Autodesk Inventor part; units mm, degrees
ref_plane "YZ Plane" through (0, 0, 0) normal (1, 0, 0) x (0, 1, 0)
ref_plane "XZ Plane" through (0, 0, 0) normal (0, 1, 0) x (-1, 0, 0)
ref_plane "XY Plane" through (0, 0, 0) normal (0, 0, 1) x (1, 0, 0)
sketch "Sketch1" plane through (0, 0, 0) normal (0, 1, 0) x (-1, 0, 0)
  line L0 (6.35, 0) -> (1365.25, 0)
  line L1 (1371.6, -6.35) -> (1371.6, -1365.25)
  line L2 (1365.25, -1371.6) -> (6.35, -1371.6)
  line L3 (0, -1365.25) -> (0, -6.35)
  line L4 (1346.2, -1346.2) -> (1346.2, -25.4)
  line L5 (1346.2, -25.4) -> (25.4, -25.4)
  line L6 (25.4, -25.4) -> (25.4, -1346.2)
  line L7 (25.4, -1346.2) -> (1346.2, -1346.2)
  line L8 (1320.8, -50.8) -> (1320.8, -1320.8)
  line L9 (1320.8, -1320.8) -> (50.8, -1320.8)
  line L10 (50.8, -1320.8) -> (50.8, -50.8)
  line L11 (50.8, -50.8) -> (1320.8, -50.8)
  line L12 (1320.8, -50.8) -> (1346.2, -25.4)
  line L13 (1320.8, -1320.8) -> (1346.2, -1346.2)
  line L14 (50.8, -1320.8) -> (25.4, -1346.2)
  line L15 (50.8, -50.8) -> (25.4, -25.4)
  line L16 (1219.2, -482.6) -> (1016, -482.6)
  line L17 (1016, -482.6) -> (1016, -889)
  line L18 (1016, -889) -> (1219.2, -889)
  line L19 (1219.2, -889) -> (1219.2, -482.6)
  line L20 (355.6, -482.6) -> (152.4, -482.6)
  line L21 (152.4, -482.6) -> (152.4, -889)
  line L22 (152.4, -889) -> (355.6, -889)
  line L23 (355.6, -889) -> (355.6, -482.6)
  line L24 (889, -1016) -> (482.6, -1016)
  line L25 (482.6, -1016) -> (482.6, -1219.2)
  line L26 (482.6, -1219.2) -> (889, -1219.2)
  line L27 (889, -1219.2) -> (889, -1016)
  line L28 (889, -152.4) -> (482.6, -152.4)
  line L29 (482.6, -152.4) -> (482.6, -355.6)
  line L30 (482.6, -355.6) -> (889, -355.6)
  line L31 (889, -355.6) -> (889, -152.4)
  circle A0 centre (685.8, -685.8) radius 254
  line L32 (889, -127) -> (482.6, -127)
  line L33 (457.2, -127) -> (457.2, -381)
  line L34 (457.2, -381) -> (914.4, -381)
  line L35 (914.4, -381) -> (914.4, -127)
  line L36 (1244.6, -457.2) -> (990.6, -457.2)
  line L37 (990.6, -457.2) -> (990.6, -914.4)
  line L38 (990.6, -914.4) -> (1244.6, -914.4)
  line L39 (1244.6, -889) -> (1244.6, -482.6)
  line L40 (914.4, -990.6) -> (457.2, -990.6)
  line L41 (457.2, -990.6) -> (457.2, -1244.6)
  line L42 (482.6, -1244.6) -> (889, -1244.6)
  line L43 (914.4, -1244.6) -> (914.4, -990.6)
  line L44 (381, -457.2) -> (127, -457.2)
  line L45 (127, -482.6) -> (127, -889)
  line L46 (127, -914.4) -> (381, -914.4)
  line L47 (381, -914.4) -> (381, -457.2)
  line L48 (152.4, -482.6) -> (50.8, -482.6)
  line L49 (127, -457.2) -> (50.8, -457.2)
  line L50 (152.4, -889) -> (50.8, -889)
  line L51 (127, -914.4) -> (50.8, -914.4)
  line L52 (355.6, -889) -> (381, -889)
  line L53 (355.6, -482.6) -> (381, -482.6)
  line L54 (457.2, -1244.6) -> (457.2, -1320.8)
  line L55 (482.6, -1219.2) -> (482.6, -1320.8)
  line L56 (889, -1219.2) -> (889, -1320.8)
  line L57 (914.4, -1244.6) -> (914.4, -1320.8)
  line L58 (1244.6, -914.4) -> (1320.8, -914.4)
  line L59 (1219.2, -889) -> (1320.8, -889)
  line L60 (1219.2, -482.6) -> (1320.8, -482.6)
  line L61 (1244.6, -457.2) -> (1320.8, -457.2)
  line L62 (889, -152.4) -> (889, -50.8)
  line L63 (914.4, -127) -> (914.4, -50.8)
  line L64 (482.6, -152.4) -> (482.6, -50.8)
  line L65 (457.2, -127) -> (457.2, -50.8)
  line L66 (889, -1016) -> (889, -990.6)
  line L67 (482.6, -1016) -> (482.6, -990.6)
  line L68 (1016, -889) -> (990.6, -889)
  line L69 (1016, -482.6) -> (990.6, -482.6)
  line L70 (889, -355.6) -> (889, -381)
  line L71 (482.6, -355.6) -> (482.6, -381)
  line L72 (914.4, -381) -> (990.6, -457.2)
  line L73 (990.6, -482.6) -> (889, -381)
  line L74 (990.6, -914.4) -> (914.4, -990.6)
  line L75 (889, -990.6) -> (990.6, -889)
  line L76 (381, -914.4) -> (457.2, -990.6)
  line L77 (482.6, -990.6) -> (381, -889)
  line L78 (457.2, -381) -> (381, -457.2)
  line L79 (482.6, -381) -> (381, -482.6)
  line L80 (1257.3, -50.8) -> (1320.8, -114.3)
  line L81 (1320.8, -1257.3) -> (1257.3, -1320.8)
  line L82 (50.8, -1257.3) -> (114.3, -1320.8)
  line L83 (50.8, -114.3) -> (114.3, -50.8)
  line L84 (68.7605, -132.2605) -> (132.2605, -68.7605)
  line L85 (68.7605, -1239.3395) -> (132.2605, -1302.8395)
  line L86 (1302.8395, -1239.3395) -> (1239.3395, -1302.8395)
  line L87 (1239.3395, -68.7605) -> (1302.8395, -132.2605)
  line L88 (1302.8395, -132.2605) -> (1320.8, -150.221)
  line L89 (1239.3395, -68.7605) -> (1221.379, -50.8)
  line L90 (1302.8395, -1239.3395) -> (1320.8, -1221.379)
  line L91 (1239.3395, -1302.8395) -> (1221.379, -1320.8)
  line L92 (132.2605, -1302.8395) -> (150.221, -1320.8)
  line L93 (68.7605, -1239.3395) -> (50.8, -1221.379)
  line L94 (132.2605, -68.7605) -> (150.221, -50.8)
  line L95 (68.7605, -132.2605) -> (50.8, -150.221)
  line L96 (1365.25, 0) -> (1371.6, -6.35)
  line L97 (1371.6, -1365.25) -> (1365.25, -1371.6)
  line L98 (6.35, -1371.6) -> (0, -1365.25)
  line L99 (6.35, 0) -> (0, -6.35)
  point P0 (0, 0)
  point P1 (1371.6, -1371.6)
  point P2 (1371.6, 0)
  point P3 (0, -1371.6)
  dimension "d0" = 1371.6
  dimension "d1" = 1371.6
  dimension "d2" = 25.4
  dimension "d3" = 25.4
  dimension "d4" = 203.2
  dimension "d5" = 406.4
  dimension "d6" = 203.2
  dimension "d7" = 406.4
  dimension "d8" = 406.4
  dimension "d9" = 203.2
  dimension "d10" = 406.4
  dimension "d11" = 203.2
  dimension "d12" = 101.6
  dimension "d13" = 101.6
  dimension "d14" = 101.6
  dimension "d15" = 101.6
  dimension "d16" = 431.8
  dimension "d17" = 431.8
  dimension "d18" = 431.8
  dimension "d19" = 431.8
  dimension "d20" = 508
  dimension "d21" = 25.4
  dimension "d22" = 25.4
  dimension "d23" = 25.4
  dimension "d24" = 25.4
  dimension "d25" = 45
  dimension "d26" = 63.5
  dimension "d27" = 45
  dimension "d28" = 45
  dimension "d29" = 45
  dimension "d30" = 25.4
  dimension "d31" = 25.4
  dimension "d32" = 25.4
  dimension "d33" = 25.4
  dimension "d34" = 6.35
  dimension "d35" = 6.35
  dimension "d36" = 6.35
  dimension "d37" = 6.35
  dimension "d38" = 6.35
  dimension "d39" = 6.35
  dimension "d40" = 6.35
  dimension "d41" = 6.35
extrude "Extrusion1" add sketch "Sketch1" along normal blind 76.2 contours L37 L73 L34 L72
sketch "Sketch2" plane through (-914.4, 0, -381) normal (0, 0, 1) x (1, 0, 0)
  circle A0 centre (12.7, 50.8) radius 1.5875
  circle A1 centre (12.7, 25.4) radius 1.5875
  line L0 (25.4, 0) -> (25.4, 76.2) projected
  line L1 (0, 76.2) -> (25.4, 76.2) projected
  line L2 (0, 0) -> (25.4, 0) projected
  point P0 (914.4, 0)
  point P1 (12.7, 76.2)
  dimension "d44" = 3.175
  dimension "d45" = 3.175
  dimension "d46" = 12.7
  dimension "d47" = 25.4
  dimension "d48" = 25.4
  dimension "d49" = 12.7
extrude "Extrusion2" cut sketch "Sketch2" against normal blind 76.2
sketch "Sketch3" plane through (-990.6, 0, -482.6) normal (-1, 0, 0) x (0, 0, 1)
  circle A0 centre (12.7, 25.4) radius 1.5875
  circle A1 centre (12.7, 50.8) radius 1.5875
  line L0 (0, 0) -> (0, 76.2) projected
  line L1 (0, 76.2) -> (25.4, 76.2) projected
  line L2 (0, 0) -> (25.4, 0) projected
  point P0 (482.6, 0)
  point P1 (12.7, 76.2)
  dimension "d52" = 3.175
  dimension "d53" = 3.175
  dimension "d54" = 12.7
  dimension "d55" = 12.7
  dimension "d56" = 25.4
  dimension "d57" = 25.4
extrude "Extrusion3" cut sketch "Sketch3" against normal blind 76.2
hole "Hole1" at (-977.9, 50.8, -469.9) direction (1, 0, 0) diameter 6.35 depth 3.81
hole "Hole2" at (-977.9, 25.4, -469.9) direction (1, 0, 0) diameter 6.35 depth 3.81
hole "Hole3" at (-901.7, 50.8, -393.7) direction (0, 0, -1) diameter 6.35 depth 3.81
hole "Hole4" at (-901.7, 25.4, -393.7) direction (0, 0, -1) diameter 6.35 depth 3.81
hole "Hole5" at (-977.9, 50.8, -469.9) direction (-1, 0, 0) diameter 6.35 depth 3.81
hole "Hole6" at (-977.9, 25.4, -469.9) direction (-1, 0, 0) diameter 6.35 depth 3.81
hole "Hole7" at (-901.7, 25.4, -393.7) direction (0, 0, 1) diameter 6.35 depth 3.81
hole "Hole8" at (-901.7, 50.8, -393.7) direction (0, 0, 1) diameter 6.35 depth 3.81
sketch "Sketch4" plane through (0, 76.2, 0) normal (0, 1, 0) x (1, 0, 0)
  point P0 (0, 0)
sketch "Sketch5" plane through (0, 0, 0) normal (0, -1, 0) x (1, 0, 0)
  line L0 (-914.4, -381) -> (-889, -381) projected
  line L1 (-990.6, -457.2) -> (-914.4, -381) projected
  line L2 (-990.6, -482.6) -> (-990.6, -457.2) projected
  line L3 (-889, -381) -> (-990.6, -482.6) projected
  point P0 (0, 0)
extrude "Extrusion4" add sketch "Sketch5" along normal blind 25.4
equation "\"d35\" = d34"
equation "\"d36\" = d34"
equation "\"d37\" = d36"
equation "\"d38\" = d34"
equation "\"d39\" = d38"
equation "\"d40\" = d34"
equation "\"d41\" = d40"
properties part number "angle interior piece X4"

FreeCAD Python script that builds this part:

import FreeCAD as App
import Part
import Sketcher
Q = App.Units.Quantity


def add_polygon(sketch, points):
    """Adds a closed chain of lines whose ends are joined by coincident constraints."""
    first, n = sketch.GeometryCount, len(points)
    for a, b in zip(points, points[1:] + points[:1]):
        sketch.addGeometry(Part.LineSegment(App.Vector(*a, 0), App.Vector(*b, 0)), False)
    for i in range(n):
        sketch.addConstraint(Sketcher.Constraint("Coincident", first + i, 2, first + (i + 1) % n, 1))

doc = App.newDocument("Part")
body = doc.addObject("PartDesign::Body", "Body")

sketch1 = body.newObject("Sketcher::SketchObject", "Sketch")
sketch1.AttachmentSupport = (doc.getObject("XZ_Plane"), [""])
sketch1.MapMode = "FlatFace"
add_polygon(sketch1, [(-990.6, -482.6), (-990.6, -457.2), (-914.4, -381), (-889, -381)])
sketch1.addConstraint([
    Sketcher.Constraint("Vertical", 0),
    Sketcher.Constraint("Horizontal", 2),
    Sketcher.Constraint("Parallel", 1, 3),
    Sketcher.Constraint("Equal", 2, 0),
    Sketcher.Constraint("DistanceX", 2, 1, 2, 2, Q("1 in")),
    Sketcher.Constraint("DistanceX", 0, 2, 2, 2, Q("4 in")),
    Sketcher.Constraint("DistanceX", 0, 2, -1, 1, Q("39 in")),
    Sketcher.Constraint("DistanceY", 0, 2, -1, 1, Q("18 in")),
])
pad1 = body.newObject("PartDesign::Pad", "Pad")
pad1.Profile = sketch1
pad1.Length = Q("3 in")
pad1.Reversed = True

sketch2 = body.newObject("Sketcher::SketchObject", "Sketch001")
sketch2.AttachmentSupport = (doc.getObject("XY_Plane"), [""])
sketch2.MapMode = "FlatFace"
sketch2.AttachmentOffset = App.Placement(App.Vector(0, 0, -15 * 25.4), App.Rotation())
sketch2.addGeometry([
    Part.Circle(App.Vector(-901.7, 50.8, 0), App.Vector(0, 0, 1), 1.5875),
    Part.Circle(App.Vector(-901.7, 25.4, 0), App.Vector(0, 0, 1), 1.5875),
], False)
sketch2.addConstraint([
    Sketcher.Constraint("Equal", 0, 1),
    Sketcher.Constraint("Vertical", 0, 3, 1, 3),
    Sketcher.Constraint("Diameter", 0, Q("0.125 in")),
    Sketcher.Constraint("DistanceY", -1, 1, 1, 3, Q("1 in")),
    Sketcher.Constraint("DistanceY", 1, 3, 0, 3, Q("1 in")),
    Sketcher.Constraint("DistanceX", 0, 3, -1, 1, Q("35.5 in")),
])
pocket1 = body.newObject("PartDesign::Pocket", "Pocket")
pocket1.Profile = sketch2
pocket1.Length = Q("3 in")

sketch3 = body.newObject("Sketcher::SketchObject", "Sketch002")
sketch3.AttachmentSupport = (doc.getObject("YZ_Plane"), [""])
sketch3.MapMode = "FlatFace"
sketch3.AttachmentOffset = App.Placement(App.Vector(0, 0, -39 * 25.4), App.Rotation())
sketch3.addGeometry([
    Part.Circle(App.Vector(25.4, -469.9, 0), App.Vector(0, 0, 1), 1.5875),
    Part.Circle(App.Vector(50.8, -469.9, 0), App.Vector(0, 0, 1), 1.5875),
], False)
sketch3.addConstraint([
    Sketcher.Constraint("Equal", 0, 1),
    Sketcher.Constraint("Horizontal", 0, 3, 1, 3),
    Sketcher.Constraint("Diameter", 0, Q("0.125 in")),
    Sketcher.Constraint("DistanceX", -1, 1, 0, 3, Q("1 in")),
    Sketcher.Constraint("DistanceX", 0, 3, 1, 3, Q("1 in")),
    Sketcher.Constraint("DistanceY", 0, 3, -1, 1, Q("18.5 in")),
])
pocket2 = body.newObject("PartDesign::Pocket", "Pocket001")
pocket2.Profile = sketch3
pocket2.Length = Q("3 in")
pocket2.Reversed = True

sketch4 = body.newObject("Sketcher::SketchObject", "Sketch003")
sketch4.AttachmentSupport = (doc.getObject("YZ_Plane"), [""])
sketch4.MapMode = "FlatFace"
sketch4.AttachmentOffset = App.Placement(App.Vector(0, 0, -38.5 * 25.4), App.Rotation())
sketch4.addGeometry(Part.Circle(App.Vector(50.8, -469.9, 0), App.Vector(0, 0, 1), 3.175), False)
sketch4.addConstraint([
    Sketcher.Constraint("Diameter", 0, Q("0.25 in")),
    Sketcher.Constraint("DistanceX", -1, 1, 0, 3, Q("2 in")),
    Sketcher.Constraint("DistanceY", 0, 3, -1, 1, Q("18.5 in")),
])
doc.recompute()
hole = body.newObject("PartDesign::Hole", "Hole")
hole.Profile = sketch4
hole.ThreadType = "None"
hole.Diameter = Q("0.25 in")
hole.DepthType = "Dimension"
hole.Depth = Q("0.15 in")
hole.DrillPoint = "Flat"
hole.Reversed = True

sketch5 = body.newObject("Sketcher::SketchObject", "Sketch004")
sketch5.AttachmentSupport = (doc.getObject("YZ_Plane"), [""])
sketch5.MapMode = "FlatFace"
sketch5.AttachmentOffset = App.Placement(App.Vector(0, 0, -38.5 * 25.4), App.Rotation())
sketch5.addGeometry(Part.Circle(App.Vector(25.4, -469.9, 0), App.Vector(0, 0, 1), 3.175), False)
sketch5.addConstraint([
    Sketcher.Constraint("Diameter", 0, Q("0.25 in")),
    Sketcher.Constraint("DistanceX", -1, 1, 0, 3, Q("1 in")),
    Sketcher.Constraint("DistanceY", 0, 3, -1, 1, Q("18.5 in")),
])
doc.recompute()
hole2 = body.newObject("PartDesign::Hole", "Hole001")
hole2.Profile = sketch5
hole2.ThreadType = "None"
hole2.Diameter = Q("0.25 in")
hole2.DepthType = "Dimension"
hole2.Depth = Q("0.15 in")
hole2.DrillPoint = "Flat"
hole2.Reversed = True

sketch6 = body.newObject("Sketcher::SketchObject", "Sketch005")
sketch6.AttachmentSupport = (doc.getObject("XY_Plane"), [""])
sketch6.MapMode = "FlatFace"
sketch6.AttachmentOffset = App.Placement(App.Vector(0, 0, -15.5 * 25.4), App.Rotation())
sketch6.addGeometry(Part.Circle(App.Vector(-901.7, 50.8, 0), App.Vector(0, 0, 1), 3.175), False)
sketch6.addConstraint([
    Sketcher.Constraint("Diameter", 0, Q("0.25 in")),
    Sketcher.Constraint("DistanceY", -1, 1, 0, 3, Q("2 in")),
    Sketcher.Constraint("DistanceX", 0, 3, -1, 1, Q("35.5 in")),
])
doc.recompute()
hole3 = body.newObject("PartDesign::Hole", "Hole002")
hole3.Profile = sketch6
hole3.ThreadType = "None"
hole3.Diameter = Q("0.25 in")
hole3.DepthType = "Dimension"
hole3.Depth = Q("0.15 in")
hole3.DrillPoint = "Flat"

sketch7 = body.newObject("Sketcher::SketchObject", "Sketch006")
sketch7.AttachmentSupport = (doc.getObject("XY_Plane"), [""])
sketch7.MapMode = "FlatFace"
sketch7.AttachmentOffset = App.Placement(App.Vector(0, 0, -15.5 * 25.4), App.Rotation())
sketch7.addGeometry(Part.Circle(App.Vector(-901.7, 25.4, 0), App.Vector(0, 0, 1), 3.175), False)
sketch7.addConstraint([
    Sketcher.Constraint("Diameter", 0, Q("0.25 in")),
    Sketcher.Constraint("DistanceY", -1, 1, 0, 3, Q("1 in")),
    Sketcher.Constraint("DistanceX", 0, 3, -1, 1, Q("35.5 in")),
])
doc.recompute()
hole4 = body.newObject("PartDesign::Hole", "Hole003")
hole4.Profile = sketch7
hole4.ThreadType = "None"
hole4.Diameter = Q("0.25 in")
hole4.DepthType = "Dimension"
hole4.Depth = Q("0.15 in")
hole4.DrillPoint = "Flat"

sketch8 = body.newObject("Sketcher::SketchObject", "Sketch007")
sketch8.AttachmentSupport = (doc.getObject("YZ_Plane"), [""])
sketch8.MapMode = "FlatFace"
sketch8.AttachmentOffset = App.Placement(App.Vector(0, 0, -38.5 * 25.4), App.Rotation())
sketch8.addGeometry(Part.Circle(App.Vector(50.8, -469.9, 0), App.Vector(0, 0, 1), 3.175), False)
sketch8.addConstraint([
    Sketcher.Constraint("Diameter", 0, Q("0.25 in")),
    Sketcher.Constraint("DistanceX", -1, 1, 0, 3, Q("2 in")),
    Sketcher.Constraint("DistanceY", 0, 3, -1, 1, Q("18.5 in")),
])
doc.recompute()
hole5 = body.newObject("PartDesign::Hole", "Hole004")
hole5.Profile = sketch8
hole5.ThreadType = "None"
hole5.Diameter = Q("0.25 in")
hole5.DepthType = "Dimension"
hole5.Depth = Q("0.15 in")
hole5.DrillPoint = "Flat"

sketch9 = body.newObject("Sketcher::SketchObject", "Sketch008")
sketch9.AttachmentSupport = (doc.getObject("YZ_Plane"), [""])
sketch9.MapMode = "FlatFace"
sketch9.AttachmentOffset = App.Placement(App.Vector(0, 0, -38.5 * 25.4), App.Rotation())
sketch9.addGeometry(Part.Circle(App.Vector(25.4, -469.9, 0), App.Vector(0, 0, 1), 3.175), False)
sketch9.addConstraint([
    Sketcher.Constraint("Diameter", 0, Q("0.25 in")),
    Sketcher.Constraint("DistanceX", -1, 1, 0, 3, Q("1 in")),
    Sketcher.Constraint("DistanceY", 0, 3, -1, 1, Q("18.5 in")),
])
doc.recompute()
hole6 = body.newObject("PartDesign::Hole", "Hole005")
hole6.Profile = sketch9
hole6.ThreadType = "None"
hole6.Diameter = Q("0.25 in")
hole6.DepthType = "Dimension"
hole6.Depth = Q("0.15 in")
hole6.DrillPoint = "Flat"

sketch10 = body.newObject("Sketcher::SketchObject", "Sketch009")
sketch10.AttachmentSupport = (doc.getObject("XY_Plane"), [""])
sketch10.MapMode = "FlatFace"
sketch10.AttachmentOffset = App.Placement(App.Vector(0, 0, -15.5 * 25.4), App.Rotation())
sketch10.addGeometry(Part.Circle(App.Vector(-901.7, 25.4, 0), App.Vector(0, 0, 1), 3.175), False)
sketch10.addConstraint([
    Sketcher.Constraint("Diameter", 0, Q("0.25 in")),
    Sketcher.Constraint("DistanceY", -1, 1, 0, 3, Q("1 in")),
    Sketcher.Constraint("DistanceX", 0, 3, -1, 1, Q("35.5 in")),
])
doc.recompute()
hole7 = body.newObject("PartDesign::Hole", "Hole006")
hole7.Profile = sketch10
hole7.ThreadType = "None"
hole7.Diameter = Q("0.25 in")
hole7.DepthType = "Dimension"
hole7.Depth = Q("0.15 in")
hole7.DrillPoint = "Flat"
hole7.Reversed = True

sketch11 = body.newObject("Sketcher::SketchObject", "Sketch010")
sketch11.AttachmentSupport = (doc.getObject("XY_Plane"), [""])
sketch11.MapMode = "FlatFace"
sketch11.AttachmentOffset = App.Placement(App.Vector(0, 0, -15.5 * 25.4), App.Rotation())
sketch11.addGeometry(Part.Circle(App.Vector(-901.7, 50.8, 0), App.Vector(0, 0, 1), 3.175), False)
sketch11.addConstraint([
    Sketcher.Constraint("Diameter", 0, Q("0.25 in")),
    Sketcher.Constraint("DistanceY", -1, 1, 0, 3, Q("2 in")),
    Sketcher.Constraint("DistanceX", 0, 3, -1, 1, Q("35.5 in")),
])
doc.recompute()
hole8 = body.newObject("PartDesign::Hole", "Hole007")
hole8.Profile = sketch11
hole8.ThreadType = "None"
hole8.Diameter = Q("0.25 in")
hole8.DepthType = "Dimension"
hole8.Depth = Q("0.15 in")
hole8.DrillPoint = "Flat"
hole8.Reversed = True

sketch12 = body.newObject("Sketcher::SketchObject", "Sketch011")
sketch12.AttachmentSupport = (doc.getObject("XZ_Plane"), [""])
sketch12.MapMode = "FlatFace"
add_polygon(sketch12, [(-889, -381), (-914.4, -381), (-990.6, -457.2), (-990.6, -482.6)])
sketch12.addConstraint([
    Sketcher.Constraint("Horizontal", 0),
    Sketcher.Constraint("Vertical", 2),
    Sketcher.Constraint("Parallel", 1, 3),
    Sketcher.Constraint("Equal", 0, 2),
    Sketcher.Constraint("DistanceX", 0, 2, 0, 1, Q("1 in")),
    Sketcher.Constraint("DistanceX", 0, 2, -1, 1, Q("36 in")),
    Sketcher.Constraint("DistanceY", 0, 2, -1, 1, Q("15 in")),
    Sketcher.Constraint("DistanceX", 1, 2, -1, 1, Q("39 in")),
])
pad2 = body.newObject("PartDesign::Pad", "Pad001")
pad2.Profile = sketch12
pad2.Length = Q("1 in")

doc.recompute()
